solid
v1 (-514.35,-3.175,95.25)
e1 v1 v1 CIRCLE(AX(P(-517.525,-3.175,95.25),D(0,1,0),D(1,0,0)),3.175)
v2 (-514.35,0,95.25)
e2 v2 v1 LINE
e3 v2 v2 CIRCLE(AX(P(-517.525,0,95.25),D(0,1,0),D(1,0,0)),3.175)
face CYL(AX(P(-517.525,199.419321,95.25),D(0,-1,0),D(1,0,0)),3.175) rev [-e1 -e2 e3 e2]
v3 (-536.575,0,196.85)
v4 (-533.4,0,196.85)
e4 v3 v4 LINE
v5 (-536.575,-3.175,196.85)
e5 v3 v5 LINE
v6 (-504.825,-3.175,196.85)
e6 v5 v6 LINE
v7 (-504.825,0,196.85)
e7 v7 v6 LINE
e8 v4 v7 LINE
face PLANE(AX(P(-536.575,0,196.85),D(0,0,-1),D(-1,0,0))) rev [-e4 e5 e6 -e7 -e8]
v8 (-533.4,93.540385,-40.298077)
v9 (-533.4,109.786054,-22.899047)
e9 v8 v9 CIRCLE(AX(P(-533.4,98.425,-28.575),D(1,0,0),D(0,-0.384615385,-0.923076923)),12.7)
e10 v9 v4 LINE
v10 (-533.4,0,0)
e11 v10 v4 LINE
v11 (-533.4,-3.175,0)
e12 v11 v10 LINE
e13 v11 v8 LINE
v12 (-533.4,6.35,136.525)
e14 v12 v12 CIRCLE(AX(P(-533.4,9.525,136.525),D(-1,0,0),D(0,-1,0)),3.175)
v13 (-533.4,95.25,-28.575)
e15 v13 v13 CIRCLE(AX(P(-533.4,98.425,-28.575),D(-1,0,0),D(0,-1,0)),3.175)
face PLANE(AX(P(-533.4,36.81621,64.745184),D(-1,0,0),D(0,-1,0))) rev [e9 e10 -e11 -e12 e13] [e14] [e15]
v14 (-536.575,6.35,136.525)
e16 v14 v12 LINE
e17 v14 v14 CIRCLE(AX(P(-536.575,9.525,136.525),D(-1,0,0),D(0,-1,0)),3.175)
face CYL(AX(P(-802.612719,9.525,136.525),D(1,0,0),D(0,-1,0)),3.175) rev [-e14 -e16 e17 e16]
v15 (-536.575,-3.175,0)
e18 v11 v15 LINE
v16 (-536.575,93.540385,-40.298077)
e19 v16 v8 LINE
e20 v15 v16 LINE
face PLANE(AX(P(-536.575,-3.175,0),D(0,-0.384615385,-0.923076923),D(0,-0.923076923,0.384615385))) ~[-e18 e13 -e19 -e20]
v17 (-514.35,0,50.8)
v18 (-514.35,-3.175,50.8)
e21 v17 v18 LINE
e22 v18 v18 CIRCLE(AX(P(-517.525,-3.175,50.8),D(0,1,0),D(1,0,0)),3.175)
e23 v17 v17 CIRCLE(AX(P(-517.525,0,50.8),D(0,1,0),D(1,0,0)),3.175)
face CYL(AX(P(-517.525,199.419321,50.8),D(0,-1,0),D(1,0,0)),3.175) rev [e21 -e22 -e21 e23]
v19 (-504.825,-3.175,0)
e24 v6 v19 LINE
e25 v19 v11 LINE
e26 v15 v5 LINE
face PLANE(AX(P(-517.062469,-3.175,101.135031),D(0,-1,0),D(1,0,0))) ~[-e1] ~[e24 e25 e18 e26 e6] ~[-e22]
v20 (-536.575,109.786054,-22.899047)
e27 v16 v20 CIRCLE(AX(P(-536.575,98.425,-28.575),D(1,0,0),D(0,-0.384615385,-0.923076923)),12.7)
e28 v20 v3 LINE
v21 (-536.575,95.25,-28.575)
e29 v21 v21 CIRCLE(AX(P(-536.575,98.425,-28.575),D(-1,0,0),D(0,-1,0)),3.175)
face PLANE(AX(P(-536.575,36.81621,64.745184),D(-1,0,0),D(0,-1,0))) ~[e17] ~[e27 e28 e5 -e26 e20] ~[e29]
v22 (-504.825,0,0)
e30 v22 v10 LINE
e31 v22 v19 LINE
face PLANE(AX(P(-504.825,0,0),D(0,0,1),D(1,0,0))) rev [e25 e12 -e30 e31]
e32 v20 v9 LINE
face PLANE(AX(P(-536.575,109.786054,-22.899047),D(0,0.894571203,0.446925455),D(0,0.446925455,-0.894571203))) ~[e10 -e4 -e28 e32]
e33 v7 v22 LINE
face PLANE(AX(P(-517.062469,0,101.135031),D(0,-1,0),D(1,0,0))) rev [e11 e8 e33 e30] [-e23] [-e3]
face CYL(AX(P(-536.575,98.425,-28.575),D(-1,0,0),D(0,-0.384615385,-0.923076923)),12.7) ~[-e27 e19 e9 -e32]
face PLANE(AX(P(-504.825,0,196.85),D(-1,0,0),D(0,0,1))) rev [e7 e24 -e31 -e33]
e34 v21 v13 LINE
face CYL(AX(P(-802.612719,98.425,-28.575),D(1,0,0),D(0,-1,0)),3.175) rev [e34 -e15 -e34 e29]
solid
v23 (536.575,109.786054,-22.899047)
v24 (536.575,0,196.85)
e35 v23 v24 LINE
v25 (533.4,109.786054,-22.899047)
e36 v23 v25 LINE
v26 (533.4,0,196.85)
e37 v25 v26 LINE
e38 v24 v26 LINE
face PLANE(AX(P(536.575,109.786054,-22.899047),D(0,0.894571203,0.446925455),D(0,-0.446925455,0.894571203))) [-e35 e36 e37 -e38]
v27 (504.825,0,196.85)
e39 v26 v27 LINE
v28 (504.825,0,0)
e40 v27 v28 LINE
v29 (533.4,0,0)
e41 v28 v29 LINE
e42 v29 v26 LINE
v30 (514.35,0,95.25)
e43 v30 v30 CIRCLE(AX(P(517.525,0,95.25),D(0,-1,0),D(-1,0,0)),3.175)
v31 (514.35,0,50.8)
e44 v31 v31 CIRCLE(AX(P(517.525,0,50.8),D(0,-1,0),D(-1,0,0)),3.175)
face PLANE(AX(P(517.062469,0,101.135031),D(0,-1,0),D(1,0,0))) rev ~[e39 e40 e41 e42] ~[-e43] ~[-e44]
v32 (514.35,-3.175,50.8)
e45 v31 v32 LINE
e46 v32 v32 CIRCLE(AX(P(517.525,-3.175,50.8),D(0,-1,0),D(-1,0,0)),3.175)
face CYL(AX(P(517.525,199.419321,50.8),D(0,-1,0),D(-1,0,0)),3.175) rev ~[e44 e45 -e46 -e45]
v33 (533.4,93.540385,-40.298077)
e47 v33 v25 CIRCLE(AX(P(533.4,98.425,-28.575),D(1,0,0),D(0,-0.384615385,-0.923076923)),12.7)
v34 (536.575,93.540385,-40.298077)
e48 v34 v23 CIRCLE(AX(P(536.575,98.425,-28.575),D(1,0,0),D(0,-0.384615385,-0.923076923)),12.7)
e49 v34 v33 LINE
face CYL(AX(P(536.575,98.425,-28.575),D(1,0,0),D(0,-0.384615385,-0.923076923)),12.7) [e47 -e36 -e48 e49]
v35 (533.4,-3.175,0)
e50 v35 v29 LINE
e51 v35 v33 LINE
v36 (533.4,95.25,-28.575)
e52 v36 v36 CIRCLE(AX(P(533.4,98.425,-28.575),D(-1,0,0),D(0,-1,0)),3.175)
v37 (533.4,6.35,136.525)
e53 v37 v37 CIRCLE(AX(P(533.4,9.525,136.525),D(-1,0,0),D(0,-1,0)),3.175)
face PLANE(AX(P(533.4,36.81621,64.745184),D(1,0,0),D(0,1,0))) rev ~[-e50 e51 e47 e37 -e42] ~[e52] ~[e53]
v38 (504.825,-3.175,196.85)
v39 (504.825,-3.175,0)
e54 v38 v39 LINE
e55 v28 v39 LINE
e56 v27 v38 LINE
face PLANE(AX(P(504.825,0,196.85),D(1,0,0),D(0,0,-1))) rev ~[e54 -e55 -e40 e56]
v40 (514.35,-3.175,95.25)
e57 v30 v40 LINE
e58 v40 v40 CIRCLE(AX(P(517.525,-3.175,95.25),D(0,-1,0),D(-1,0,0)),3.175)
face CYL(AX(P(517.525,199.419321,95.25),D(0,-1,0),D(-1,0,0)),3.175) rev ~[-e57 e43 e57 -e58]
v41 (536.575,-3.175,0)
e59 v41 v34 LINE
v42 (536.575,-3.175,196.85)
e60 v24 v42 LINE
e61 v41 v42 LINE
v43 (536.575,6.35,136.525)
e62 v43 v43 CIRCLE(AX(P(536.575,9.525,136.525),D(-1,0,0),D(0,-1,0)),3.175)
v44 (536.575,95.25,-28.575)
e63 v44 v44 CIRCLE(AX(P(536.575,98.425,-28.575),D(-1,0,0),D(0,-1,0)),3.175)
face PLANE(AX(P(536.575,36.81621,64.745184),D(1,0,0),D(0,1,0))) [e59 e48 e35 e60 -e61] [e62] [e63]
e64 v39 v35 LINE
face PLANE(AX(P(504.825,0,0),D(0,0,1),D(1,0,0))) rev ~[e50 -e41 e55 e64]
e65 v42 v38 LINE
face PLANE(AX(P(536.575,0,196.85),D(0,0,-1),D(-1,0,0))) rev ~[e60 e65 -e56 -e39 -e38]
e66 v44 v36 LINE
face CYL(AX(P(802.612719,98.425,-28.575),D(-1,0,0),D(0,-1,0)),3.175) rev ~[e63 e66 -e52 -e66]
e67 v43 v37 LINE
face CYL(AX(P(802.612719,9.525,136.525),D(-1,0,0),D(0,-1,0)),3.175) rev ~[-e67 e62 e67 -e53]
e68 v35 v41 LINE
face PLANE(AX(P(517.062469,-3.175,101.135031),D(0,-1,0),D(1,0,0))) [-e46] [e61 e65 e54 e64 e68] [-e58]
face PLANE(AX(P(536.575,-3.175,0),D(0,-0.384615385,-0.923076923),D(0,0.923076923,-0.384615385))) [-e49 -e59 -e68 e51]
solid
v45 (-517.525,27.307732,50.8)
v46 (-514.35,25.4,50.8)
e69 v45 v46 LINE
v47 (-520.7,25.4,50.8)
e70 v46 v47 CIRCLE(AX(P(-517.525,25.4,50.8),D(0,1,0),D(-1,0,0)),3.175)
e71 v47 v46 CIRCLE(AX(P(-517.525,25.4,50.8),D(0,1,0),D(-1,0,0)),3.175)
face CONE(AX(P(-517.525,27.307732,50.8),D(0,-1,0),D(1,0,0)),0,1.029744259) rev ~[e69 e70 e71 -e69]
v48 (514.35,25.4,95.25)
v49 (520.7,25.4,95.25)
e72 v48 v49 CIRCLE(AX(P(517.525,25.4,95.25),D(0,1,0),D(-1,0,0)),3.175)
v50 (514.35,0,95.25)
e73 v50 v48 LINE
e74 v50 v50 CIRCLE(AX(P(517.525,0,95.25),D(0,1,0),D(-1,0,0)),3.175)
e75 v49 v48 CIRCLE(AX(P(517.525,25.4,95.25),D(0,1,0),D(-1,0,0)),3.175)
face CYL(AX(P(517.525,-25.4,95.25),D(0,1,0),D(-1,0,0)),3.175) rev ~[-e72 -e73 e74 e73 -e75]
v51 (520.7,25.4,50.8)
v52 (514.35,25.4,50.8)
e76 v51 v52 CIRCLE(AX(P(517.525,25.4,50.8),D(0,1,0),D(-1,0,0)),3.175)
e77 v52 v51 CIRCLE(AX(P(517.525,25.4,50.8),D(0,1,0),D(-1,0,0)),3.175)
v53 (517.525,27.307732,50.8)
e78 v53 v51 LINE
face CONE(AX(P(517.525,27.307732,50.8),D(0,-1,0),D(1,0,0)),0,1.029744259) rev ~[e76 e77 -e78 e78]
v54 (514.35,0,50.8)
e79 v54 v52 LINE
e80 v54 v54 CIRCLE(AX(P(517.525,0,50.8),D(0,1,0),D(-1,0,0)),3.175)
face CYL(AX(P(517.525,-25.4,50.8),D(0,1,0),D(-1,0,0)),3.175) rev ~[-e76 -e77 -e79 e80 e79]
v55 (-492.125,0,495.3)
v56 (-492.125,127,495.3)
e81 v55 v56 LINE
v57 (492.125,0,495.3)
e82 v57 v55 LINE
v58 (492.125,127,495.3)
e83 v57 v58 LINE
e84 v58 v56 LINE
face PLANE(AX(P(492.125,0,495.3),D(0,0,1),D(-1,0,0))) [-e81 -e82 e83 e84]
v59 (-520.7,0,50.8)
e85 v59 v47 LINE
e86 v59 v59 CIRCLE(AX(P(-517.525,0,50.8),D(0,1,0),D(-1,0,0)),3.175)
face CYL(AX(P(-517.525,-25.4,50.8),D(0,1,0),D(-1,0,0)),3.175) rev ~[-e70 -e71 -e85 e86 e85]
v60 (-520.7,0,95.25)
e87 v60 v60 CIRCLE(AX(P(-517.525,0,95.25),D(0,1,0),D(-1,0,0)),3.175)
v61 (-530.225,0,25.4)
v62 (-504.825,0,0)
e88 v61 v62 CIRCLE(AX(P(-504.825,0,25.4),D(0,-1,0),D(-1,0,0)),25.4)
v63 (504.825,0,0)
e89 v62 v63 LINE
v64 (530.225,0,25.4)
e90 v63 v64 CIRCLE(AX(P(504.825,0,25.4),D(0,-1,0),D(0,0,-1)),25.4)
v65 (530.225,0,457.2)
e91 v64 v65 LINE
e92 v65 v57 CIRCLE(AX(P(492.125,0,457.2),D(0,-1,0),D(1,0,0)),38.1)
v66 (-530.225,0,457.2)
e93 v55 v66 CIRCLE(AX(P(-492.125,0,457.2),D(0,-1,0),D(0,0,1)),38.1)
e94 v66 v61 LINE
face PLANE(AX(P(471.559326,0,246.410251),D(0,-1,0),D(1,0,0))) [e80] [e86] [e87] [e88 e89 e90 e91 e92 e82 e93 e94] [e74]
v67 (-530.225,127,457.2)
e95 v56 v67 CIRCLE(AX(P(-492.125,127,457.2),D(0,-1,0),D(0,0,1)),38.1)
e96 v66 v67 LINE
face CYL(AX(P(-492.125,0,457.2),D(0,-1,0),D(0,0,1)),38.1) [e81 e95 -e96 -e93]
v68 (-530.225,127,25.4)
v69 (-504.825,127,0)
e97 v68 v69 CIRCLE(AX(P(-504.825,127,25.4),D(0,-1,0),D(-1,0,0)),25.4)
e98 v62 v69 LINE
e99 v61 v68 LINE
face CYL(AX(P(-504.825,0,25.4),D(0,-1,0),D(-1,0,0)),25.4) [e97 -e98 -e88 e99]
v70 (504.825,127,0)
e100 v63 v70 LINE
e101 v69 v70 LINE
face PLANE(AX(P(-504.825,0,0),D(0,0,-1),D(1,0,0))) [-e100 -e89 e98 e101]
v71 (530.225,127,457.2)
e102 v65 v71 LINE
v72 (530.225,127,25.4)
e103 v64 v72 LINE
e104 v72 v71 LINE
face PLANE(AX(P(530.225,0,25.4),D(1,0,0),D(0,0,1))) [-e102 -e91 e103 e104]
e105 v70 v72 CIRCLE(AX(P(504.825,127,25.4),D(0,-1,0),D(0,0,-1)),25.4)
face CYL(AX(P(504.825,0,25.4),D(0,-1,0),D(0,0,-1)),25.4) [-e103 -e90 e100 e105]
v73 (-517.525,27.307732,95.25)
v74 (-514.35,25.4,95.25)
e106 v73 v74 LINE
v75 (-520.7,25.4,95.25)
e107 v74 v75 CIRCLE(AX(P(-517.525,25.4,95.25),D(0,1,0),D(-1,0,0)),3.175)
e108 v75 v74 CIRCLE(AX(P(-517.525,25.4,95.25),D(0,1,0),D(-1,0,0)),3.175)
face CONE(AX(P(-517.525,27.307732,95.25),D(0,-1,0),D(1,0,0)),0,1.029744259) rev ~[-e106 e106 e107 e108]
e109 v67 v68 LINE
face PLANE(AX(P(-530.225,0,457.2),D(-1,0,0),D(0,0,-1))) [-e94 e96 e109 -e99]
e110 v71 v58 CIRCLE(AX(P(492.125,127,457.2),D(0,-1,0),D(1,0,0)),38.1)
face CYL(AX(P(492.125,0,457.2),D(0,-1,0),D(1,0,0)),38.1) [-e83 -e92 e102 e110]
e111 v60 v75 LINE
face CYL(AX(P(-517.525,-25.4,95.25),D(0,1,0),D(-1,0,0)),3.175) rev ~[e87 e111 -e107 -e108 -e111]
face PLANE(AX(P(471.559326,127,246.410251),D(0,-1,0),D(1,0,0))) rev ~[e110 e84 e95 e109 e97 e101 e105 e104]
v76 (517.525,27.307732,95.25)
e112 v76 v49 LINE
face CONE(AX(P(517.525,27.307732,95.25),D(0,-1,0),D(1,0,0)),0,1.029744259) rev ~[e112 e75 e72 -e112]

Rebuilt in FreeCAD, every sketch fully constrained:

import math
import FreeCAD as App
import Part
import Sketcher

V = App.Vector
Q = App.Units.Quantity

doc = App.newDocument("Part")
body = doc.addObject("PartDesign::Body", "Body")

sketch1 = doc.addObject("Sketcher::SketchObject", "Sketch")
body.addObject(sketch1)
sketch1.AttachmentSupport = (doc.XZ_Plane, [""])
sketch1.MapMode = "FlatFace"
sketch1.addGeometry(Part.ArcOfCircle(Part.Circle(V(505, 25, 0), V(0, 0, 1), 25), math.radians(-90), math.radians(0)), False)
sketch1.addGeometry(Part.LineSegment(V(530, 25, 0), V(530, 457, 0)), False)
sketch1.addGeometry(Part.ArcOfCircle(Part.Circle(V(492, 457, 0), V(0, 0, 1), 38), math.radians(0), math.radians(90)), False)
sketch1.addGeometry(Part.LineSegment(V(492, 495, 0), V(-492, 495, 0)), False)
sketch1.addGeometry(Part.ArcOfCircle(Part.Circle(V(-492, 457, 0), V(0, 0, 1), 38), math.radians(90), math.radians(180)), False)
sketch1.addGeometry(Part.LineSegment(V(-530, 457, 0), V(-530, 25, 0)), False)
sketch1.addGeometry(Part.ArcOfCircle(Part.Circle(V(-505, 25, 0), V(0, 0, 1), 25), math.radians(180), math.radians(270)), False)
sketch1.addGeometry(Part.LineSegment(V(-505, 0, 0), V(505, 0, 0)), False)
sketch1.addConstraint(Sketcher.Constraint("Tangent", 0, 2, 1, 1))
sketch1.addConstraint(Sketcher.Constraint("Tangent", 1, 2, 2, 1))
sketch1.addConstraint(Sketcher.Constraint("Tangent", 2, 2, 3, 1))
sketch1.addConstraint(Sketcher.Constraint("Tangent", 3, 2, 4, 1))
sketch1.addConstraint(Sketcher.Constraint("Tangent", 4, 2, 5, 1))
sketch1.addConstraint(Sketcher.Constraint("Tangent", 5, 2, 6, 1))
sketch1.addConstraint(Sketcher.Constraint("Tangent", 6, 2, 7, 1))
sketch1.addConstraint(Sketcher.Constraint("Tangent", 7, 2, 0, 1))
sketch1.addConstraint(Sketcher.Constraint("Vertical", 1))
sketch1.addConstraint(Sketcher.Constraint("Horizontal", 3))
sketch1.addConstraint(Sketcher.Constraint("Vertical", 5))
sketch1.addConstraint(Sketcher.Constraint("Horizontal", 7))
sketch1.addConstraint(Sketcher.Constraint("Equal", 2, 4))
sketch1.addConstraint(Sketcher.Constraint("Equal", 0, 6))
sketch1.addConstraint(Sketcher.Constraint("Symmetric", 6, 2, 7, 2, -1, 1))
sketch1.addConstraint(Sketcher.Constraint("Radius", 0, Q("1 in")))
sketch1.addConstraint(Sketcher.Constraint("Radius", 2, Q("1.5 in")))
sketch1.addConstraint(Sketcher.Constraint("DistanceY", 1, 1, 1, 2, Q("17 in")))
sketch1.addConstraint(Sketcher.Constraint("DistanceX", 3, 2, 3, 1, Q("38.75 in")))
pad1 = doc.addObject("PartDesign::Pad", "Pad")
body.addObject(pad1)
pad1.Profile = sketch1
pad1.Length = Q("5 in")
pad1.Reversed = True

sketch2 = doc.addObject("Sketcher::SketchObject", "Sketch001")
body.addObject(sketch2)
sketch2.AttachmentSupport = (doc.XZ_Plane, [""])
sketch2.MapMode = "FlatFace"
sketch2.addGeometry(Part.Circle(V(-517.5, 95.2, 0), V(0, 0, 1), 3.2), False)
sketch2.addGeometry(Part.Circle(V(-517.5, 50.8, 0), V(0, 0, 1), 3.2), False)
sketch2.addGeometry(Part.Circle(V(517.5, 95.2, 0), V(0, 0, 1), 3.2), False)
sketch2.addGeometry(Part.Circle(V(517.5, 50.8, 0), V(0, 0, 1), 3.2), False)
sketch2.addConstraint(Sketcher.Constraint("Equal", 0, 1))
sketch2.addConstraint(Sketcher.Constraint("Equal", 1, 2))
sketch2.addConstraint(Sketcher.Constraint("Equal", 2, 3))
sketch2.addConstraint(Sketcher.Constraint("Symmetric", 0, 3, 2, 3, -2))
sketch2.addConstraint(Sketcher.Constraint("Symmetric", 1, 3, 3, 3, -2))
sketch2.addConstraint(Sketcher.Constraint("Vertical", 0, 3, 1, 3))
sketch2.addConstraint(Sketcher.Constraint("Diameter", 0, Q("0.25 in")))
sketch2.addConstraint(Sketcher.Constraint("DistanceY", -1, 1, 1, 3, Q("2 in")))
sketch2.addConstraint(Sketcher.Constraint("DistanceY", -1, 1, 0, 3, Q("3.75 in")))
sketch2.addConstraint(Sketcher.Constraint("DistanceX", 0, 3, 2, 3, Q("40.75 in")))
doc.recompute()
hole = doc.addObject("PartDesign::Hole", "Hole")
body.addObject(hole)
hole.Profile = sketch2
hole.ThreadType = "None"
hole.Diameter = Q("0.25 in")
hole.DepthType = "Dimension"
hole.Depth = Q("1 in")
hole.DrillPoint = "Angled"
hole.DrillPointAngle = 118
body2 = doc.addObject("PartDesign::Body", "Body001")

sketch3 = doc.addObject("Sketcher::SketchObject", "Sketch002")
body2.addObject(sketch3)
sketch3.AttachmentSupport = (doc.getObject("XZ_Plane001"), [""])
sketch3.MapMode = "FlatFace"
sketch3.addGeometry(Part.LineSegment(V(505, 197, 0), V(505, 0, 0)), False)
sketch3.addGeometry(Part.LineSegment(V(505, 0, 0), V(537, 0, 0)), False)
sketch3.addGeometry(Part.LineSegment(V(537, 0, 0), V(537, 197, 0)), False)
sketch3.addGeometry(Part.LineSegment(V(537, 197, 0), V(505, 197, 0)), False)
sketch3.addConstraint(Sketcher.Constraint("Coincident", 0, 2, 1, 1))
sketch3.addConstraint(Sketcher.Constraint("Coincident", 1, 2, 2, 1))
sketch3.addConstraint(Sketcher.Constraint("Coincident", 2, 2, 3, 1))
sketch3.addConstraint(Sketcher.Constraint("Coincident", 3, 2, 0, 1))
sketch3.addConstraint(Sketcher.Constraint("Vertical", 0))
sketch3.addConstraint(Sketcher.Constraint("Horizontal", 1))
sketch3.addConstraint(Sketcher.Constraint("Vertical", 2))
sketch3.addConstraint(Sketcher.Constraint("Horizontal", 3))
sketch3.addConstraint(Sketcher.Constraint("PointOnObject", 0, 2, -1))
sketch3.addConstraint(Sketcher.Constraint("DistanceX", 1, 1, 1, 2, Q("1.25 in")))
sketch3.addConstraint(Sketcher.Constraint("DistanceY", 0, 2, 0, 1, Q("7.75 in")))
sketch3.addConstraint(Sketcher.Constraint("DistanceX", -1, 1, 0, 2, Q("19.875 in")))
pad2 = doc.addObject("PartDesign::Pad", "Pad001")
body2.addObject(pad2)
pad2.Profile = sketch3
pad2.Length = Q("0.125 in")

sketch4 = doc.addObject("Sketcher::SketchObject", "Sketch003")
body2.addObject(sketch4)
sketch4.AttachmentSupport = (doc.getObject("XZ_Plane001"), [""])
sketch4.MapMode = "FlatFace"
sketch4.addGeometry(Part.Circle(V(517.5, 95.2, 0), V(0, 0, 1), 3.2), False)
sketch4.addGeometry(Part.Circle(V(517.5, 50.8, 0), V(0, 0, 1), 3.2), False)
sketch4.addConstraint(Sketcher.Constraint("Equal", 0, 1))
sketch4.addConstraint(Sketcher.Constraint("Vertical", 0, 3, 1, 3))
sketch4.addConstraint(Sketcher.Constraint("Diameter", 0, Q("0.25 in")))
sketch4.addConstraint(Sketcher.Constraint("DistanceY", -1, 1, 1, 3, Q("2 in")))
sketch4.addConstraint(Sketcher.Constraint("DistanceY", -1, 1, 0, 3, Q("3.75 in")))
sketch4.addConstraint(Sketcher.Constraint("DistanceX", -1, 1, 0, 3, Q("20.375 in")))
doc.recompute()
hole2 = doc.addObject("PartDesign::Hole", "Hole001")
body2.addObject(hole2)
hole2.Profile = sketch4
hole2.ThreadType = "None"
hole2.Diameter = Q("0.25 in")
hole2.DepthType = "ThroughAll"
hole2.Reversed = True

sketch5 = doc.addObject("Sketcher::SketchObject", "Sketch004")
body2.addObject(sketch5)
sketch5.AttachmentSupport = (doc.getObject("YZ_Plane001"), [""])
sketch5.MapMode = "FlatFace"
sketch5.AttachmentOffset = App.Placement(V(0, 0, 21.125 * 25.4), App.Rotation())
sketch5.addGeometry(Part.LineSegment(V(-3.2, 0, 0), V(93.5, -40.3, 0)), False)
sketch5.addGeometry(Part.ArcOfCircle(Part.Circle(V(98.4, -28.6, 0), V(0, 0, 1), 12.7), math.radians(-113), math.radians(27)), False)
sketch5.addGeometry(Part.LineSegment(V(109.8, -22.9, 0), V(0, 196.8, 0)), False)
sketch5.addGeometry(Part.LineSegment(V(0, 196.8, 0), V(-3.2, 196.8, 0)), False)
sketch5.addGeometry(Part.LineSegment(V(-3.2, 196.8, 0), V(-3.2, 0, 0)), False)
sketch5.addConstraint(Sketcher.Constraint("Tangent", 0, 2, 1, 1))
sketch5.addConstraint(Sketcher.Constraint("Tangent", 1, 2, 2, 1))
sketch5.addConstraint(Sketcher.Constraint("Coincident", 2, 2, 3, 1))
sketch5.addConstraint(Sketcher.Constraint("Coincident", 3, 2, 4, 1))
sketch5.addConstraint(Sketcher.Constraint("Coincident", 4, 2, 0, 1))
sketch5.addConstraint(Sketcher.Constraint("Horizontal", 3))
sketch5.addConstraint(Sketcher.Constraint("Vertical", 4))
sketch5.addConstraint(Sketcher.Constraint("PointOnObject", 2, 2, -2))
sketch5.addConstraint(Sketcher.Constraint("PointOnObject", 4, 2, -1))
sketch5.addConstraint(Sketcher.Constraint("Radius", 1, Q("0.5 in")))
sketch5.addConstraint(Sketcher.Constraint("DistanceX", 3, 2, 1, 3, Q("4 in")))
sketch5.addConstraint(Sketcher.Constraint("DistanceY", 4, 2, 4, 1, Q("7.75 in")))
sketch5.addConstraint(Sketcher.Constraint("DistanceX", 3, 2, 3, 1, Q("0.125 in")))
sketch5.addConstraint(Sketcher.Constraint("Distance", 0, Q("4.125 in")))
pad3 = doc.addObject("PartDesign::Pad", "Pad002")
body2.addObject(pad3)
pad3.Profile = sketch5
pad3.Length = Q("0.125 in")
pad3.Reversed = True

sketch6 = doc.addObject("Sketcher::SketchObject", "Sketch005")
body2.addObject(sketch6)
sketch6.AttachmentSupport = (doc.getObject("YZ_Plane001"), [""])
sketch6.MapMode = "FlatFace"
sketch6.AttachmentOffset = App.Placement(V(0, 0, 21.125 * 25.4), App.Rotation())
sketch6.addGeometry(Part.Circle(V(98.4, -28.6, 0), V(0, 0, 1), 3.2), False)
sketch6.addGeometry(Part.Circle(V(9.5, 136.5, 0), V(0, 0, 1), 3.2), False)
sketch6.addConstraint(Sketcher.Constraint("Equal", 0, 1))
sketch6.addConstraint(Sketcher.Constraint("Diameter", 0, Q("0.25 in")))
sketch6.addConstraint(Sketcher.Constraint("DistanceX", 1, 3, 0, 3, Q("3.5 in")))
sketch6.addConstraint(Sketcher.Constraint("DistanceY", 0, 3, 1, 3, Q("6.5 in")))
sketch6.addConstraint(Sketcher.Constraint("DistanceX", -1, 1, 0, 3, Q("3.875 in")))
sketch6.addConstraint(Sketcher.Constraint("DistanceY", 0, 3, -1, 1, Q("1.125 in")))
doc.recompute()
hole3 = doc.addObject("PartDesign::Hole", "Hole002")
body2.addObject(hole3)
hole3.Profile = sketch6
hole3.ThreadType = "None"
hole3.Diameter = Q("0.25 in")
hole3.DepthType = "ThroughAll"
body3 = doc.addObject("PartDesign::Body", "Body002")
doc.recompute()

mirroring = doc.addObject("Part::Mirroring", "Mirroring")
mirroring.Source = body2
mirroring.Base = V(0, 0, 0)
mirroring.Normal = V(1, 0, 0)
body3.BaseFeature = mirroring
doc.recompute()
mirroring.Visibility = False

doc.recompute()
